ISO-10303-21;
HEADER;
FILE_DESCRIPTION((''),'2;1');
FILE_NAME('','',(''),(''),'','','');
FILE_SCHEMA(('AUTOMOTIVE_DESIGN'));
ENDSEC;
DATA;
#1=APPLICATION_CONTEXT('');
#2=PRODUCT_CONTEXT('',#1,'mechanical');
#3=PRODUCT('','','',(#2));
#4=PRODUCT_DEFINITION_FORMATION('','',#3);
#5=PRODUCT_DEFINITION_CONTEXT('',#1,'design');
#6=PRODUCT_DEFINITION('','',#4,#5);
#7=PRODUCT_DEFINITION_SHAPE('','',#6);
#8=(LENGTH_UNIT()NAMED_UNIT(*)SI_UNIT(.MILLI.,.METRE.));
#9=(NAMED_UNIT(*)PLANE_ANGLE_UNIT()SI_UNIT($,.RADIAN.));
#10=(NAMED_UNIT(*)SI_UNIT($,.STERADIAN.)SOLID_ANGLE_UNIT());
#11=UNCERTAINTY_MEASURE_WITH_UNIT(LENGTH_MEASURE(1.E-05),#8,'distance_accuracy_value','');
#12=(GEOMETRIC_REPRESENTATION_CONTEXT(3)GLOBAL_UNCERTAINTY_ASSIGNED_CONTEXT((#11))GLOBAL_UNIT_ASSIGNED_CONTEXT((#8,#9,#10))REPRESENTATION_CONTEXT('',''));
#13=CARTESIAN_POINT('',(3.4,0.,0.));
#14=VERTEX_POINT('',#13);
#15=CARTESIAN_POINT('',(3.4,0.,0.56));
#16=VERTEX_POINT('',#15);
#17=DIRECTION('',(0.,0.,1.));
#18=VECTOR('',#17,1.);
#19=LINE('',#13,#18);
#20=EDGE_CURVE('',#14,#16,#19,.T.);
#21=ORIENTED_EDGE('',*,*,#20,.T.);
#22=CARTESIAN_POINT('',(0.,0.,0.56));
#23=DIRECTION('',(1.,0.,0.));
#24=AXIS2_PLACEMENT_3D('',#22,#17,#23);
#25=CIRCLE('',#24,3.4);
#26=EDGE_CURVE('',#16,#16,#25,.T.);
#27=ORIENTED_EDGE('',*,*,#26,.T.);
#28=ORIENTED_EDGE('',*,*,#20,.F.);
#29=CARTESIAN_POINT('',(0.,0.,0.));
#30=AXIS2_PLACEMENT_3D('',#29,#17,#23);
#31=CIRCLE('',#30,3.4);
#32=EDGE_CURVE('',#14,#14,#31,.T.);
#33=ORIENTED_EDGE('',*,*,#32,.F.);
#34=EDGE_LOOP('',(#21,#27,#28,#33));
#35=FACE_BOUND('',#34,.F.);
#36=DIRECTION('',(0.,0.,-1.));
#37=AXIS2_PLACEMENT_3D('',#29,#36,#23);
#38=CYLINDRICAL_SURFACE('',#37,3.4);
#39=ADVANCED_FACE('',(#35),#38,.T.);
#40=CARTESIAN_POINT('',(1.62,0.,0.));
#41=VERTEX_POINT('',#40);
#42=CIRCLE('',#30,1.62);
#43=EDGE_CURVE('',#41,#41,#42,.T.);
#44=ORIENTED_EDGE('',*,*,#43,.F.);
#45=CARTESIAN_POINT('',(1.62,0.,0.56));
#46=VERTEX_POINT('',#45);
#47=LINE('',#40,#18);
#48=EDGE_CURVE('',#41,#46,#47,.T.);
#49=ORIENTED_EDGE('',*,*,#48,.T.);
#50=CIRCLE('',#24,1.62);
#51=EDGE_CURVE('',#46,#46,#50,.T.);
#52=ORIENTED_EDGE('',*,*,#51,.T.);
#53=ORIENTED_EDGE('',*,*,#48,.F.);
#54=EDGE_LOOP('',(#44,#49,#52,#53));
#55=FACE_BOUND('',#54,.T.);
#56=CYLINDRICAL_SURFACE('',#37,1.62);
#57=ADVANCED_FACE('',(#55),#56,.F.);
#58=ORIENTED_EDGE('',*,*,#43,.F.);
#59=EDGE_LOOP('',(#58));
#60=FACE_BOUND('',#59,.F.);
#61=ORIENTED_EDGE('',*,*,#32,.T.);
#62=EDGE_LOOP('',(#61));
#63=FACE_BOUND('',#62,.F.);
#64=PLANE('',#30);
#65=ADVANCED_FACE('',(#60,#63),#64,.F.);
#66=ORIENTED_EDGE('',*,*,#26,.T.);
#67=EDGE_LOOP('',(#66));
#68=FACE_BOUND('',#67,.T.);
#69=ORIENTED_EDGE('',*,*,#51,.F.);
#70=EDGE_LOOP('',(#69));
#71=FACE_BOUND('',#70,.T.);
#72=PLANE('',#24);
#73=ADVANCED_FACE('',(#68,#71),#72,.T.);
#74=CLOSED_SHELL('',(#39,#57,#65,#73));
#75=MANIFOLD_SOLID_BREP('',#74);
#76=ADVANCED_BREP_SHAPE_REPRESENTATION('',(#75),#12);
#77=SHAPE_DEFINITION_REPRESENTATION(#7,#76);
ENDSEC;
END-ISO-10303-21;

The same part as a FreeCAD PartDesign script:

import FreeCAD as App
import Part
import Sketcher
from FreeCAD import Vector
Q = App.Units.Quantity

doc = App.newDocument("Part")
params = doc.addObject("Spreadsheet::Sheet", "Params")
for row, (alias, value) in enumerate([
    ("sketch1_diameter", "6.8 mm"),
    ("sketch1_diameter2", "3.24 mm"),
    ("pad1_length", "0.56 mm"),
], start=1):
    params.set(f"A{row}", alias)
    params.set(f"B{row}", "=" + value)
    params.setAlias(f"B{row}", alias)

body = doc.addObject("PartDesign::Body", "Body")

sketch1 = body.newObject("Sketcher::SketchObject", "Sketch")
sketch1.AttachmentSupport = (doc.getObject("XY_Plane"), [""])
sketch1.MapMode = "FlatFace"
sketch1.addGeometry(Part.Circle(Vector(0, 0, 0), Vector(0, 0, 1), 3.4), False)
sketch1.addGeometry(Part.Circle(Vector(0, 0, 0), Vector(0, 0, 1), 1.6), False)
sketch1.addConstraint(Sketcher.Constraint("Coincident", 0, 3, -1, 1))
sketch1.addConstraint(Sketcher.Constraint("Coincident", 1, 3, -1, 1))
sketch1.addConstraint(Sketcher.Constraint("Diameter", 0, Q("6.8 mm")))
sketch1.addConstraint(Sketcher.Constraint("Diameter", 1, Q("3.24 mm")))
sketch1.setExpression("Constraints[2]", "Params.sketch1_diameter")
sketch1.setExpression("Constraints[3]", "Params.sketch1_diameter2")
pad1 = body.newObject("PartDesign::Pad", "Pad")
pad1.Profile = sketch1
pad1.setExpression("Length", "Params.pad1_length")

doc.recompute()
